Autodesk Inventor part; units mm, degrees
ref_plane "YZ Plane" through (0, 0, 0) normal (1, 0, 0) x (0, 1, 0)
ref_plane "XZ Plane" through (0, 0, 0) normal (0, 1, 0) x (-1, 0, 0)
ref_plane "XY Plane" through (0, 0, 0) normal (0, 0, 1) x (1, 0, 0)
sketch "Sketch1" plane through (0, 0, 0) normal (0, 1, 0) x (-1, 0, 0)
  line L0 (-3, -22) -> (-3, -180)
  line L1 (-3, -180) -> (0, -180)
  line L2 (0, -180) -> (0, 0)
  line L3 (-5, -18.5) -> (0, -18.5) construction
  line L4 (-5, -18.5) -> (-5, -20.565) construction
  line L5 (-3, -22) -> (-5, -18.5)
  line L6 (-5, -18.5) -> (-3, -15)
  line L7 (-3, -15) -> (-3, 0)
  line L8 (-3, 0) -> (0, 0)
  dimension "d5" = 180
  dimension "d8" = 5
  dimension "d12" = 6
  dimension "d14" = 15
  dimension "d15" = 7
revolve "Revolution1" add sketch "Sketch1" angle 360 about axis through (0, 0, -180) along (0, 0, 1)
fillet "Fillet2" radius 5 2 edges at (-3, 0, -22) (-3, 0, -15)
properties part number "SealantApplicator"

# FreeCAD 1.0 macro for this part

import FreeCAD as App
import Part
import Sketcher

V = App.Vector
Q = App.Units.Quantity


def edges_at(feature, points):
    """Names of the edges that pass closest to the given points."""
    edges = feature.Shape.Edges
    near = lambda p: min(range(len(edges)), key=lambda i: edges[i].distToShape(Part.Vertex(*p))[0])
    return sorted({f"Edge{near(p) + 1}" for p in points})

doc = App.newDocument("Part")
params = doc.addObject("Spreadsheet::Sheet", "Params")
for row, (alias, value) in enumerate([
    ("sketch1_height", "180 mm"),
    ("sketch1_height2", "15 mm"),
    ("sketch1_width", "3 mm"),
    ("revolution_angle", "360 deg"),
    ("fillet_radius", "5 mm"),
], start=1):
    params.set(f"A{row}", alias)
    params.set(f"B{row}", "=" + value)
    params.setAlias(f"B{row}", alias)

body = doc.addObject("PartDesign::Body", "Body")

# Sketch on XZ plane
sketch1 = body.newObject("Sketcher::SketchObject", "Sketch")
sketch1.AttachmentSupport = (doc.getObject("XZ_Plane"), [""])
sketch1.MapMode = "FlatFace"
sketch1.addGeometry([
    Part.LineSegment(V(5, -18.5, 0), V(3, -22, 0)),  # 0
    Part.LineSegment(V(3, -22, 0), V(3, -180, 0)),  # 1
    Part.LineSegment(V(3, -180, 0), V(0, -180, 0)),  # 2
    Part.LineSegment(V(0, -180, 0), V(0, 0, 0)),  # 3
    Part.LineSegment(V(0, 0, 0), V(3, 0, 0)),  # 4
    Part.LineSegment(V(3, 0, 0), V(3, -15, 0)),  # 5
    Part.LineSegment(V(3, -15, 0), V(5, -18.5, 0)),  # 6
], False)
sketch1.addConstraint([
    Sketcher.Constraint("Coincident", 0, 2, 1, 1),
    Sketcher.Constraint("Coincident", 1, 2, 2, 1),
    Sketcher.Constraint("Coincident", 2, 2, 3, 1),
    Sketcher.Constraint("Coincident", 3, 2, 4, 1),
    Sketcher.Constraint("Coincident", 4, 2, 5, 1),
    Sketcher.Constraint("Coincident", 5, 2, 6, 1),
    Sketcher.Constraint("Coincident", 6, 2, 0, 1),
    Sketcher.Constraint("Vertical", 1),
    Sketcher.Constraint("Horizontal", 2),
    Sketcher.Constraint("Vertical", 3),
    Sketcher.Constraint("Horizontal", 4),
    Sketcher.Constraint("Vertical", 5),
    Sketcher.Constraint("Coincident", 3, 2, -1, 1),
    Sketcher.Constraint("Vertical", 1, 2, 4, 2),
    Sketcher.Constraint("Equal", 0, 6),
    Sketcher.Constraint("DistanceY", 3, 1, 3, 2, Q("180 mm")),
    Sketcher.Constraint("DistanceY", 5, 2, 5, 1, Q("15 mm")),
    Sketcher.Constraint("DistanceX", -1, 1, 6, 2, Q("5 mm")),
    Sketcher.Constraint("DistanceY", 0, 2, 5, 2, Q("7 mm")),
    Sketcher.Constraint("DistanceX", 2, 2, 2, 1, Q("3 mm")),
])
sketch1.setExpression("Constraints[15]", "Params.sketch1_height")
sketch1.setExpression("Constraints[16]", "Params.sketch1_height2")
sketch1.setExpression("Constraints[19]", "Params.sketch1_width")
revolution = body.newObject("PartDesign::Revolution", "Revolution")
revolution.Profile = sketch1
revolution.ReferenceAxis = (sketch1, ["V_Axis"])
revolution.setExpression("Angle", "Params.revolution_angle")
doc.recompute()

fillet = body.newObject("PartDesign::Fillet", "Fillet")
fillet.Base = (revolution, edges_at(revolution, [(-3, 0, -22), (-3, 0, -15)]))
fillet.setExpression("Radius", "Params.fillet_radius")

doc.recompute()
